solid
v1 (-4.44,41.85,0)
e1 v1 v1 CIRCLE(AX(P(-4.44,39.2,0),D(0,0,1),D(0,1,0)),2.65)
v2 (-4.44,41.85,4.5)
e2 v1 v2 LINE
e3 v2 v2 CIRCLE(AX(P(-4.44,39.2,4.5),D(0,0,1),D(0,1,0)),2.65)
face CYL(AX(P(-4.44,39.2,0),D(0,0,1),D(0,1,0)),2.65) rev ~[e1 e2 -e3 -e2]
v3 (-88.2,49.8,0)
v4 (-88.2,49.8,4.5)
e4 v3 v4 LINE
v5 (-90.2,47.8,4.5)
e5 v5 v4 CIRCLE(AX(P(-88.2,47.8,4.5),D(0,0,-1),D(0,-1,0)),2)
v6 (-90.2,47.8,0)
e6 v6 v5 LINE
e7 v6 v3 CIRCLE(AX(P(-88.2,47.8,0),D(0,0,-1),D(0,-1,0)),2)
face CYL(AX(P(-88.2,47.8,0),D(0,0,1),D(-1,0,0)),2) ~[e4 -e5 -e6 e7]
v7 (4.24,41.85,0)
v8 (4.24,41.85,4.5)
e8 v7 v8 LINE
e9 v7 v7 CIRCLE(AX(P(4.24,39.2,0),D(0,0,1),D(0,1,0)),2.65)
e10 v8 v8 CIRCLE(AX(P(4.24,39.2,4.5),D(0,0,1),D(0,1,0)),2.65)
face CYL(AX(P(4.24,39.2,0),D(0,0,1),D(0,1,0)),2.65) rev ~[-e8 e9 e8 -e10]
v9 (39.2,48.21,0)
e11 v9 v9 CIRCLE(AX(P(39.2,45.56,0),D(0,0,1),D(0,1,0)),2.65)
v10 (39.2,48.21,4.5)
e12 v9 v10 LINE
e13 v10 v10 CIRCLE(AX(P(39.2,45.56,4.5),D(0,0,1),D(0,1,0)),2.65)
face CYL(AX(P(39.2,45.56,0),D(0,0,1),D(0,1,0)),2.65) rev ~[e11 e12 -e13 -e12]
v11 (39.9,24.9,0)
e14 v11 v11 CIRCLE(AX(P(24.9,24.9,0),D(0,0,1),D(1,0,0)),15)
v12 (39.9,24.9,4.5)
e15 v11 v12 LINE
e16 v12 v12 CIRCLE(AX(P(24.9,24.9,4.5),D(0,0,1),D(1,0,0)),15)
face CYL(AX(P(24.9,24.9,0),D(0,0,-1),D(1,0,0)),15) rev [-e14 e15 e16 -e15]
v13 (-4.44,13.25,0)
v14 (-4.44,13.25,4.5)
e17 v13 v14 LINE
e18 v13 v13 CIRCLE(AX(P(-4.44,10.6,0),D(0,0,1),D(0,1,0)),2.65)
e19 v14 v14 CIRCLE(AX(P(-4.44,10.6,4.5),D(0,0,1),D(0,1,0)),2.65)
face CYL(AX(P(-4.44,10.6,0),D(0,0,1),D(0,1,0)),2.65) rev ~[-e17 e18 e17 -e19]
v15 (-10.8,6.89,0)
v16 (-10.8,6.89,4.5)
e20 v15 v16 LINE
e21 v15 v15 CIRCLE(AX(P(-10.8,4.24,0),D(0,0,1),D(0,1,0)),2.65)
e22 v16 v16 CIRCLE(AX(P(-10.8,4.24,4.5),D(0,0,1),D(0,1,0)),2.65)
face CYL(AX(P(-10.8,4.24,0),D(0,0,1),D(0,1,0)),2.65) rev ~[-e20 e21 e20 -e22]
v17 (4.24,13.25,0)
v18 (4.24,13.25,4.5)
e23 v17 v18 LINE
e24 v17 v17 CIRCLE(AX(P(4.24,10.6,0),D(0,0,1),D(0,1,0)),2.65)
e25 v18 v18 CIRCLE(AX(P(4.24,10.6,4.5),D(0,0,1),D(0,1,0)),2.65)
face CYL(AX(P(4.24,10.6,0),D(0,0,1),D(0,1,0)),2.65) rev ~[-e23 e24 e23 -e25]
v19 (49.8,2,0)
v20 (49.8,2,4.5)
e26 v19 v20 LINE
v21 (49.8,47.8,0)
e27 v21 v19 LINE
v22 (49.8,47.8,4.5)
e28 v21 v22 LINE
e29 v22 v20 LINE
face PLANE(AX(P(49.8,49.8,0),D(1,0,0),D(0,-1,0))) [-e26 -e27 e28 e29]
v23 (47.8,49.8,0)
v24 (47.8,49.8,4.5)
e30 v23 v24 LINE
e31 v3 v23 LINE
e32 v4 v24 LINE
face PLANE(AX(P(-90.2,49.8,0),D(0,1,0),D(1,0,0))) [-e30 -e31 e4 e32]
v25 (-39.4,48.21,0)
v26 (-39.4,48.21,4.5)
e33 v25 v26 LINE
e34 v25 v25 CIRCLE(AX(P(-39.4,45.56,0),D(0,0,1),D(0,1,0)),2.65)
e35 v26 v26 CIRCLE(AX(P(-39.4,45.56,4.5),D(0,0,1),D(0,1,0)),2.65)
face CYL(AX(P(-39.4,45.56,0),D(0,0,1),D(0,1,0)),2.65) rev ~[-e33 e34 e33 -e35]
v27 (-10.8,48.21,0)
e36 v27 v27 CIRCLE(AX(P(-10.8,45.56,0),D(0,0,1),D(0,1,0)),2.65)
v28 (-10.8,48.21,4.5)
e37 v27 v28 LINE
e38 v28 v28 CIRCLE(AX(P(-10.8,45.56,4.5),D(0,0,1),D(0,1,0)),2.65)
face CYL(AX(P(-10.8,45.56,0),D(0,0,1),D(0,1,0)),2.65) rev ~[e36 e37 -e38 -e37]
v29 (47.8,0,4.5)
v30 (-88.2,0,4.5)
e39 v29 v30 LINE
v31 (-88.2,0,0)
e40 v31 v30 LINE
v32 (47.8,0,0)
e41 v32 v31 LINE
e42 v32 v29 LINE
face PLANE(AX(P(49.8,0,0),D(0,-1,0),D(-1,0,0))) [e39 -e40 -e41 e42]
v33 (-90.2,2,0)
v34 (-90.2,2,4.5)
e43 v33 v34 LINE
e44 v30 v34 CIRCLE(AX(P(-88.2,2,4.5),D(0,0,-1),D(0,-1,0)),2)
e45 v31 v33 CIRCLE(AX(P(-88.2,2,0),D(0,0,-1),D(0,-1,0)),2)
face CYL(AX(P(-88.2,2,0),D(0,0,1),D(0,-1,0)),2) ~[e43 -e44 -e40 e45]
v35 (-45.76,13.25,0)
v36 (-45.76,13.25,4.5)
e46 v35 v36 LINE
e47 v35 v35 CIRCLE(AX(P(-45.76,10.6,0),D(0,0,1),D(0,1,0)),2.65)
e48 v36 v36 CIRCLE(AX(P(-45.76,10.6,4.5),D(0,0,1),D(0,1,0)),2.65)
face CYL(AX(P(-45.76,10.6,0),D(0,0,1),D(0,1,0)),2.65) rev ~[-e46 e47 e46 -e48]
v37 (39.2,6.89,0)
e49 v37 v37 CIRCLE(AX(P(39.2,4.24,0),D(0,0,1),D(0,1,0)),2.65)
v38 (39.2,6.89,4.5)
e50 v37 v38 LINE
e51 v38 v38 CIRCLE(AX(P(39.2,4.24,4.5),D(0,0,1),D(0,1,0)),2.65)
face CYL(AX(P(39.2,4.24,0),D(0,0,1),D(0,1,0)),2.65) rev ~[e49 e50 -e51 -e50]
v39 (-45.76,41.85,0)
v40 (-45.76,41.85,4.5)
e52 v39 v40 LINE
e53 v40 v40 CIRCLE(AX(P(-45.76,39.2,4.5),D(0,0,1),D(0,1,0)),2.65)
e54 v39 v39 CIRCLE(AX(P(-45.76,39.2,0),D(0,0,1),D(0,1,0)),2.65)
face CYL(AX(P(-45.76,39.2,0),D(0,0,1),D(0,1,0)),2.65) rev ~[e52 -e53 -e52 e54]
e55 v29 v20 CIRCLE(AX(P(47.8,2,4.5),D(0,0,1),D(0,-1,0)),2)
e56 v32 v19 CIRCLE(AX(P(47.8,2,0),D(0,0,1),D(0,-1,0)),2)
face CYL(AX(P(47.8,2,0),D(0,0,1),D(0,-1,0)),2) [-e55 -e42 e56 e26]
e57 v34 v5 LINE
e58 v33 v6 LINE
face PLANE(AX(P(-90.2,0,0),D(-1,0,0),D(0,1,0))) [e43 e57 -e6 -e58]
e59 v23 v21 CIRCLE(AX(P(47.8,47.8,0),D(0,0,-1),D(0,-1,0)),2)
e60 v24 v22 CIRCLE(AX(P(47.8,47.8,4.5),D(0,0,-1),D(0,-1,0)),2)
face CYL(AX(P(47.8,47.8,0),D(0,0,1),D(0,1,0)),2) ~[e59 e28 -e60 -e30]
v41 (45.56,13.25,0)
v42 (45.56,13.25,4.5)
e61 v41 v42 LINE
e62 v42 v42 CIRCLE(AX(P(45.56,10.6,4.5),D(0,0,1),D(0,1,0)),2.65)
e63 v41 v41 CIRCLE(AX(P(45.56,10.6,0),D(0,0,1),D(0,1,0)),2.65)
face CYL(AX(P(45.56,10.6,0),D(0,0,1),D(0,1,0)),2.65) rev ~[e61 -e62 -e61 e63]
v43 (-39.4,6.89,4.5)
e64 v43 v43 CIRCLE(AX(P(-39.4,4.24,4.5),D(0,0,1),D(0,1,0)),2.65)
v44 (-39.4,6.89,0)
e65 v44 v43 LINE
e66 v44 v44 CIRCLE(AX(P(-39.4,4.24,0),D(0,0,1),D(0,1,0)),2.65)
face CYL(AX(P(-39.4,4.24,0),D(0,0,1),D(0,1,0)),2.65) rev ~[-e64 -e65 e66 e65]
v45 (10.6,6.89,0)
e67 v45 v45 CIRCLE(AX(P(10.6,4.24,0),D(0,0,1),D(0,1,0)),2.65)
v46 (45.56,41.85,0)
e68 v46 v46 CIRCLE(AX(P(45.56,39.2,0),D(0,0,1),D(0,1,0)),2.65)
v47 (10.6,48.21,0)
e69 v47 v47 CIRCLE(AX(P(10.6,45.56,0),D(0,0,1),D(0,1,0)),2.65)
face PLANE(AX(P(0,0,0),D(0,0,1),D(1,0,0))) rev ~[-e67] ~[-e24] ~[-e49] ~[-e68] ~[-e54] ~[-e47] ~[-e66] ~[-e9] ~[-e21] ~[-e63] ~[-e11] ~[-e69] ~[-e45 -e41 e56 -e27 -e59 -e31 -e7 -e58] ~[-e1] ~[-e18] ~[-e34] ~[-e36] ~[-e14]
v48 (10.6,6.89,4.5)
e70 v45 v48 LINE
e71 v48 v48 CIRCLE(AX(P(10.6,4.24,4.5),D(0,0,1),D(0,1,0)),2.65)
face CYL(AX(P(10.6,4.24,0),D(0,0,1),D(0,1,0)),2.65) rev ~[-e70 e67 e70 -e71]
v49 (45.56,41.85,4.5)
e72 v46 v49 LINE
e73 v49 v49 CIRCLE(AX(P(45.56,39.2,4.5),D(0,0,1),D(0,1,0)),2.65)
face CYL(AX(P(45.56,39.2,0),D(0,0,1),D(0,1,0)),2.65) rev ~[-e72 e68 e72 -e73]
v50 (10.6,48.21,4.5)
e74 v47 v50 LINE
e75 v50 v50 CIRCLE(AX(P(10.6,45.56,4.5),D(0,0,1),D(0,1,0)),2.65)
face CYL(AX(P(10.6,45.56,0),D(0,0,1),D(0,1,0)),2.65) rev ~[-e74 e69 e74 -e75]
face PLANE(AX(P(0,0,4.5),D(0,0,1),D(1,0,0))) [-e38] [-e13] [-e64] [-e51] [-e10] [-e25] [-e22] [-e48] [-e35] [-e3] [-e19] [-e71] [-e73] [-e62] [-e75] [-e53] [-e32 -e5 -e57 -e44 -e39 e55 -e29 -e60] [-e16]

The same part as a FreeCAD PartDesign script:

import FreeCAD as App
import Part
import Sketcher

V = App.Vector


def edges_at(feature, points):
    """Names of the edges that pass closest to the given points."""
    edges = feature.Shape.Edges
    near = lambda p: min(range(len(edges)), key=lambda i: edges[i].distToShape(Part.Vertex(*p))[0])
    return sorted({f"Edge{near(p) + 1}" for p in points})

doc = App.newDocument("Part")
params = doc.addObject("Spreadsheet::Sheet", "Params")
for row, (alias, value) in enumerate([
    ("sketch1_diameter", "30 mm"),
    ("sketch1_width", "140 mm"),
    ("sketch1_height", "49.8 mm"),
    ("pad1_length", "4.5 mm"),
    ("fillet_radius", "2 mm"),
    ("sketch2_diameter", "5.3 mm"),
    ("hole_diameter", "5.3 mm"),
], start=1):
    params.set(f"A{row}", alias)
    params.set(f"B{row}", "=" + value)
    params.setAlias(f"B{row}", alias)

body = doc.addObject("PartDesign::Body", "Body")

# Sketch on XY plane
sketch1 = body.newObject("Sketcher::SketchObject", "Sketch")
sketch1.AttachmentSupport = (doc.getObject("XY_Plane"), [""])
sketch1.MapMode = "FlatFace"
sketch1.addGeometry(Part.LineSegment(V(-90.2, 0, 0), V(49.8, 0, 0)), False)
sketch1.addGeometry(Part.LineSegment(V(49.8, 0, 0), V(49.8, 49.8, 0)), False)
sketch1.addGeometry(Part.LineSegment(V(49.8, 49.8, 0), V(-90.2, 49.8, 0)), False)
sketch1.addGeometry(Part.LineSegment(V(-90.2, 49.8, 0), V(-90.2, 0, 0)), False)
sketch1.addGeometry(Part.Circle(V(24.9, 24.9, 0), V(0, 0, 1), 15), False)
sketch1.addConstraint(Sketcher.Constraint("Coincident", 0, 2, 1, 1))
sketch1.addConstraint(Sketcher.Constraint("Coincident", 1, 2, 2, 1))
sketch1.addConstraint(Sketcher.Constraint("Coincident", 2, 2, 3, 1))
sketch1.addConstraint(Sketcher.Constraint("Coincident", 3, 2, 0, 1))
sketch1.addConstraint(Sketcher.Constraint("Horizontal", 0))
sketch1.addConstraint(Sketcher.Constraint("Vertical", 1))
sketch1.addConstraint(Sketcher.Constraint("Horizontal", 2))
sketch1.addConstraint(Sketcher.Constraint("Vertical", 3))
sketch1.addConstraint(Sketcher.Constraint("PointOnObject", 0, 2, -1))
sketch1.addConstraint(Sketcher.Constraint("Diameter", 4, 30.0))
sketch1.addConstraint(Sketcher.Constraint("DistanceX", 0, 1, 0, 2, 140.0))
sketch1.addConstraint(Sketcher.Constraint("DistanceY", 1, 1, 1, 2, 49.8))
sketch1.addConstraint(Sketcher.Constraint("DistanceX", -1, 1, 4, 3, 24.9))
sketch1.addConstraint(Sketcher.Constraint("DistanceY", -1, 1, 4, 3, 24.9))
sketch1.addConstraint(Sketcher.Constraint("DistanceX", -1, 1, 0, 2, 49.8))
sketch1.setExpression("Constraints[9]", "Params.sketch1_diameter")
sketch1.setExpression("Constraints[10]", "Params.sketch1_width")
sketch1.setExpression("Constraints[11]", "Params.sketch1_height")
pad1 = body.newObject("PartDesign::Pad", "Pad")
pad1.Profile = sketch1
pad1.setExpression("Length", "Params.pad1_length")
doc.recompute()

fillet = body.newObject("PartDesign::Fillet", "Fillet")
fillet.Base = (pad1, edges_at(pad1, [
    (49.8, 49.8, 2.25),
    (-90.2, 49.8, 2.25),
    (49.8, 0, 2.25),
    (-90.2, 0, 2.25),
]))
fillet.setExpression("Radius", "Params.fillet_radius")

# Sketch on XY plane
sketch2 = body.newObject("Sketcher::SketchObject", "Sketch001")
sketch2.AttachmentSupport = (doc.getObject("XY_Plane"), [""])
sketch2.MapMode = "FlatFace"
sketch2.addGeometry(Part.Circle(V(39.2, 45.56, 0), V(0, 0, 1), 2.65), False)
sketch2.addGeometry(Part.Circle(V(45.56, 39.2, 0), V(0, 0, 1), 2.65), False)
sketch2.addGeometry(Part.Circle(V(45.56, 10.6, 0), V(0, 0, 1), 2.65), False)
sketch2.addGeometry(Part.Circle(V(39.2, 4.24, 0), V(0, 0, 1), 2.65), False)
sketch2.addGeometry(Part.Circle(V(10.6, 45.56, 0), V(0, 0, 1), 2.65), False)
sketch2.addGeometry(Part.Circle(V(4.24, 39.2, 0), V(0, 0, 1), 2.65), False)
sketch2.addGeometry(Part.Circle(V(10.6, 4.24, 0), V(0, 0, 1), 2.65), False)
sketch2.addGeometry(Part.Circle(V(4.24, 10.6, 0), V(0, 0, 1), 2.65), False)
sketch2.addGeometry(Part.Circle(V(-4.44, 39.2, 0), V(0, 0, 1), 2.65), False)
sketch2.addGeometry(Part.Circle(V(-4.44, 10.6, 0), V(0, 0, 1), 2.65), False)
sketch2.addGeometry(Part.Circle(V(-10.8, 45.56, 0), V(0, 0, 1), 2.65), False)
sketch2.addGeometry(Part.Circle(V(-10.8, 4.24, 0), V(0, 0, 1), 2.65), False)
sketch2.addGeometry(Part.Circle(V(-39.4, 45.56, 0), V(0, 0, 1), 2.65), False)
sketch2.addGeometry(Part.Circle(V(-39.4, 4.24, 0), V(0, 0, 1), 2.65), False)
sketch2.addGeometry(Part.Circle(V(-45.76, 10.6, 0), V(0, 0, 1), 2.65), False)
sketch2.addGeometry(Part.Circle(V(-45.76, 39.2, 0), V(0, 0, 1), 2.65), False)
sketch2.addConstraint(Sketcher.Constraint("Equal", 0, 1))
sketch2.addConstraint(Sketcher.Constraint("Equal", 1, 2))
sketch2.addConstraint(Sketcher.Constraint("Equal", 2, 3))
sketch2.addConstraint(Sketcher.Constraint("Equal", 3, 4))
sketch2.addConstraint(Sketcher.Constraint("Equal", 4, 5))
sketch2.addConstraint(Sketcher.Constraint("Equal", 5, 6))
sketch2.addConstraint(Sketcher.Constraint("Equal", 6, 7))
sketch2.addConstraint(Sketcher.Constraint("Equal", 7, 8))
sketch2.addConstraint(Sketcher.Constraint("Equal", 8, 9))
sketch2.addConstraint(Sketcher.Constraint("Equal", 9, 10))
sketch2.addConstraint(Sketcher.Constraint("Equal", 10, 11))
sketch2.addConstraint(Sketcher.Constraint("Equal", 11, 12))
sketch2.addConstraint(Sketcher.Constraint("Equal", 12, 13))
sketch2.addConstraint(Sketcher.Constraint("Equal", 13, 14))
sketch2.addConstraint(Sketcher.Constraint("Equal", 14, 15))
sketch2.addConstraint(Sketcher.Constraint("Horizontal", 0, 3, 4, 3))
sketch2.addConstraint(Sketcher.Constraint("Horizontal", 1, 3, 5, 3))
sketch2.addConstraint(Sketcher.Constraint("Horizontal", 3, 3, 6, 3))
sketch2.addConstraint(Sketcher.Constraint("Horizontal", 2, 3, 7, 3))
sketch2.addConstraint(Sketcher.Constraint("Horizontal", 5, 3, 8, 3))
sketch2.addConstraint(Sketcher.Constraint("Horizontal", 7, 3, 9, 3))
sketch2.addConstraint(Sketcher.Constraint("Horizontal", 4, 3, 10, 3))
sketch2.addConstraint(Sketcher.Constraint("Horizontal", 6, 3, 11, 3))
sketch2.addConstraint(Sketcher.Constraint("Horizontal", 10, 3, 12, 3))
sketch2.addConstraint(Sketcher.Constraint("Horizontal", 11, 3, 13, 3))
sketch2.addConstraint(Sketcher.Constraint("Horizontal", 9, 3, 14, 3))
sketch2.addConstraint(Sketcher.Constraint("Horizontal", 8, 3, 15, 3))
sketch2.addConstraint(Sketcher.Constraint("Vertical", 1, 3, 2, 3))
sketch2.addConstraint(Sketcher.Constraint("Vertical", 0, 3, 3, 3))
sketch2.addConstraint(Sketcher.Constraint("Vertical", 4, 3, 6, 3))
sketch2.addConstraint(Sketcher.Constraint("Vertical", 5, 3, 7, 3))
sketch2.addConstraint(Sketcher.Constraint("Vertical", 8, 3, 9, 3))
sketch2.addConstraint(Sketcher.Constraint("Vertical", 10, 3, 11, 3))
sketch2.addConstraint(Sketcher.Constraint("Vertical", 12, 3, 13, 3))
sketch2.addConstraint(Sketcher.Constraint("Vertical", 14, 3, 15, 3))
sketch2.addConstraint(Sketcher.Constraint("Diameter", 0, 5.3))
sketch2.addConstraint(Sketcher.Constraint("DistanceX", 12, 3, 4, 3, 50.0))
sketch2.addConstraint(Sketcher.Constraint("DistanceX", -1, 1, 0, 3, 39.2))
sketch2.addConstraint(Sketcher.Constraint("DistanceY", -1, 1, 1, 3, 39.2))
sketch2.addConstraint(Sketcher.Constraint("DistanceY", -1, 1, 2, 3, 10.6))
sketch2.addConstraint(Sketcher.Constraint("DistanceX", -1, 1, 4, 3, 10.6))
sketch2.addConstraint(Sketcher.Constraint("DistanceX", 10, 3, -1, 1, 10.8))
sketch2.addConstraint(Sketcher.Constraint("DistanceY", -1, 1, 0, 3, 45.56))
sketch2.addConstraint(Sketcher.Constraint("DistanceX", -1, 1, 1, 3, 45.56))
sketch2.addConstraint(Sketcher.Constraint("DistanceY", -1, 1, 3, 3, 4.24))
sketch2.addConstraint(Sketcher.Constraint("DistanceX", -1, 1, 5, 3, 4.24))
sketch2.addConstraint(Sketcher.Constraint("DistanceX", 8, 3, -1, 1, 4.44))
sketch2.addConstraint(Sketcher.Constraint("DistanceX", 14, 3, -1, 1, 45.76))
sketch2.setExpression("Constraints[35]", "Params.sketch2_diameter")
doc.recompute()
hole = body.newObject("PartDesign::Hole", "Hole")
hole.Profile = sketch2
hole.ThreadType = "None"
hole.setExpression("Diameter", "Params.hole_diameter")
hole.DepthType = "ThroughAll"
hole.Reversed = True

doc.recompute()
